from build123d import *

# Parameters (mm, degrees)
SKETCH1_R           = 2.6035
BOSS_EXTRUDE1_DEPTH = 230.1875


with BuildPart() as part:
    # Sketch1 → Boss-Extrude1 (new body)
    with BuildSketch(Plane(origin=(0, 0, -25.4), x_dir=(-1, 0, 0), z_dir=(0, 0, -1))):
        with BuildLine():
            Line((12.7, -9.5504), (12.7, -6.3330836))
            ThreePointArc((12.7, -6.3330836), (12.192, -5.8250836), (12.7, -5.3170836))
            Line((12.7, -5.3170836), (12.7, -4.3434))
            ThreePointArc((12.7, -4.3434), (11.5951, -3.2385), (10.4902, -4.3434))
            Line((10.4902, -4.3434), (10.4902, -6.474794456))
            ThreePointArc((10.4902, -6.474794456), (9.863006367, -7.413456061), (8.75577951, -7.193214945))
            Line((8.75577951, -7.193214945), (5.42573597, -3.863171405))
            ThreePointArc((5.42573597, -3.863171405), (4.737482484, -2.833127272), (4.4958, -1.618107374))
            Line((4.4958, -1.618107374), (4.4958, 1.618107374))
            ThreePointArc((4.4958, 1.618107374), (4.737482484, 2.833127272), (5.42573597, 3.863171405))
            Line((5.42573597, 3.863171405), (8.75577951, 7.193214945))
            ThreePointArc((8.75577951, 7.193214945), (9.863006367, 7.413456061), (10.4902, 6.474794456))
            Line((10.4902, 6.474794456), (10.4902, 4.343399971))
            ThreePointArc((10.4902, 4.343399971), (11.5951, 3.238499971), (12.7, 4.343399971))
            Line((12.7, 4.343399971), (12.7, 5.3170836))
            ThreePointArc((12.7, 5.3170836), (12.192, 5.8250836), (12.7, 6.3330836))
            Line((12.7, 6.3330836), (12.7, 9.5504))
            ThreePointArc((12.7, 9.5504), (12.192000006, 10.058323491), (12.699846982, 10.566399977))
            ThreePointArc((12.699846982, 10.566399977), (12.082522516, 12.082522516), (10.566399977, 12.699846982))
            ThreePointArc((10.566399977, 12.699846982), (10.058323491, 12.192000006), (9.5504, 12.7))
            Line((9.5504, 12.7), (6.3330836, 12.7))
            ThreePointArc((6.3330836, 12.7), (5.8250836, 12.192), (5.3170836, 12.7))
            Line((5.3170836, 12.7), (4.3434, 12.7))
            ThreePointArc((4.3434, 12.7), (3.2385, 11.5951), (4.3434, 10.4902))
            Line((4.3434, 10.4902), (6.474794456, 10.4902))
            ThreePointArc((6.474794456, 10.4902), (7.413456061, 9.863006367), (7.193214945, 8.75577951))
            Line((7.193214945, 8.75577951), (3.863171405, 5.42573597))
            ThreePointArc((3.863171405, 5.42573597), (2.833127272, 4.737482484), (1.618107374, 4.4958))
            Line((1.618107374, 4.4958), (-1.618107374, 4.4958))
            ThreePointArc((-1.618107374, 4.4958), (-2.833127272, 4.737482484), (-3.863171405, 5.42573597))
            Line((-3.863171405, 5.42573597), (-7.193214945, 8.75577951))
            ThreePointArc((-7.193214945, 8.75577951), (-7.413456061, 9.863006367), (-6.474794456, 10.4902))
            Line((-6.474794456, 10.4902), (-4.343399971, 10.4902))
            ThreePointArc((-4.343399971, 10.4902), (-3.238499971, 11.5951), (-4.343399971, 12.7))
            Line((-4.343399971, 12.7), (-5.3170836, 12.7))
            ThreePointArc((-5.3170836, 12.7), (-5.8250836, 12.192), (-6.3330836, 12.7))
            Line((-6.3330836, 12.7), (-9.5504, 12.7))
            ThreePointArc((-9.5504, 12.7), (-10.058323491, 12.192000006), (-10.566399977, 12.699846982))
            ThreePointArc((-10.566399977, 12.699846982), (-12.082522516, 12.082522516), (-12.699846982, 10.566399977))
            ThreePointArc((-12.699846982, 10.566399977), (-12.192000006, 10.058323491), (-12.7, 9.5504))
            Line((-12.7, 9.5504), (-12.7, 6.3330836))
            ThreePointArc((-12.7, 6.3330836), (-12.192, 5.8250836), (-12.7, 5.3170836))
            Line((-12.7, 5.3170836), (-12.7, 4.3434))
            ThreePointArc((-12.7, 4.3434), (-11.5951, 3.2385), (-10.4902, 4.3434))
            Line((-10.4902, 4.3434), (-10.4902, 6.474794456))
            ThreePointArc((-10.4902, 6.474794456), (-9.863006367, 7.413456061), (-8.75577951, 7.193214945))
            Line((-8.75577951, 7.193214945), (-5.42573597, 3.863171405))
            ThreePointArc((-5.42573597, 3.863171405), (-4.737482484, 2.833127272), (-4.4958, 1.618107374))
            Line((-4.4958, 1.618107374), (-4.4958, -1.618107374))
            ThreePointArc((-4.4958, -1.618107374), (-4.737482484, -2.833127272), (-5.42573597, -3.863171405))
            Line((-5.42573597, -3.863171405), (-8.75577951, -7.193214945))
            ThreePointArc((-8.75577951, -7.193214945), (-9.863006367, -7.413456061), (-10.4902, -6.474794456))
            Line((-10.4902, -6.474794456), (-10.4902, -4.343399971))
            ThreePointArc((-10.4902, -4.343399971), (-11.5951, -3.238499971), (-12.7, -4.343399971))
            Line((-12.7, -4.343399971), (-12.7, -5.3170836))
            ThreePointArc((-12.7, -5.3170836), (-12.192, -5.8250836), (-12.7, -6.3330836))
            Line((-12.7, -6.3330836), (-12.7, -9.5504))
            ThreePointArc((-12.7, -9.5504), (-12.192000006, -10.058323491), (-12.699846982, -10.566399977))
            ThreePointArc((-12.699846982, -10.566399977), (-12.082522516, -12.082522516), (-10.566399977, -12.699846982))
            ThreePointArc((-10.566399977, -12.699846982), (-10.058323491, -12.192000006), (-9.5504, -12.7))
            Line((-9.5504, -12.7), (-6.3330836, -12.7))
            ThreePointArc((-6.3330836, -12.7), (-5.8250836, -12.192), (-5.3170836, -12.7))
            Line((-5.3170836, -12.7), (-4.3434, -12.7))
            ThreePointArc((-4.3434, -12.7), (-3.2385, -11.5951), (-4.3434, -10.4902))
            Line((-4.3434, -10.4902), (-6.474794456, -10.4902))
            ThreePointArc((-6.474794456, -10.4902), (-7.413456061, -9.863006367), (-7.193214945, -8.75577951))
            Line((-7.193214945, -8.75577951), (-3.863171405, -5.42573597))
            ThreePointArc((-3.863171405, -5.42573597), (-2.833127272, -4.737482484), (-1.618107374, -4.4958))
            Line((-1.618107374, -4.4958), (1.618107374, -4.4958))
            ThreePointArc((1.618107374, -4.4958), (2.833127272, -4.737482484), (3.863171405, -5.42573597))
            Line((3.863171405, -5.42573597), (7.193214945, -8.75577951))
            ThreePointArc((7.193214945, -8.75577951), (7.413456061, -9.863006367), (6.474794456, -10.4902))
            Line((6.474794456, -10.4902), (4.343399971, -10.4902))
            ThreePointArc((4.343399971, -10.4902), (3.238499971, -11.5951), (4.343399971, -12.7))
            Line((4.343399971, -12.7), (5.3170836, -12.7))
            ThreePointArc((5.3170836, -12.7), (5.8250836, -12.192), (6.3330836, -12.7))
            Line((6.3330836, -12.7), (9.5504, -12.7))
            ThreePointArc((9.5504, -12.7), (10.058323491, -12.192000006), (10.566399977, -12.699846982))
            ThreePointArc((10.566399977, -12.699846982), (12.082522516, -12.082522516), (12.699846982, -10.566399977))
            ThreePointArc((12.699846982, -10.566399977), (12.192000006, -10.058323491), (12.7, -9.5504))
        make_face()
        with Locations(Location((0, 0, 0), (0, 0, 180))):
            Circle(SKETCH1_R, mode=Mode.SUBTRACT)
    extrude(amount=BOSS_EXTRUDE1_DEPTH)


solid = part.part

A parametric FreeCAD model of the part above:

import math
import FreeCAD as App
import Part
import Sketcher

V = App.Vector
Q = App.Units.Quantity

doc = App.newDocument("Part")
body = doc.addObject("PartDesign::Body", "Body")

sketch1 = body.newObject("Sketcher::SketchObject", "Sketch")
sketch1.AttachmentSupport = (doc.getObject("XY_Plane"), [""])
sketch1.MapMode = "FlatFace"
sketch1.AttachmentOffset = App.Placement(V(0, 0, -1 * 25.4), App.Rotation())
sketch1.addGeometry(Part.LineSegment(V(-12.7, -9.6, 0), V(-12.7, -6.3, 0)), False)
sketch1.addGeometry(Part.ArcOfCircle(Part.Circle(V(-12.7, -5.8, 0), V(0, 0, 1), 0.5), math.radians(-90), math.radians(90)), False)
sketch1.addGeometry(Part.LineSegment(V(-12.7, -5.3, 0), V(-12.7, -4.3, 0)), False)
sketch1.addGeometry(Part.ArcOfCircle(Part.Circle(V(-11.6, -4.3, 0), V(0, 0, 1), 1.1), math.radians(0), math.radians(180)), False)
sketch1.addGeometry(Part.LineSegment(V(-10.5, -4.3, 0), V(-10.5, -6.5, 0)), False)
sketch1.addGeometry(Part.ArcOfCircle(Part.Circle(V(-9.5, -6.5, 0), V(0, 0, 1), 1), math.radians(180), math.radians(315)), False)
sketch1.addGeometry(Part.LineSegment(V(-8.8, -7.2, 0), V(-5.4, -3.9, 0)), False)
sketch1.addGeometry(Part.ArcOfCircle(Part.Circle(V(-7.7, -1.6, 0), V(0, 0, 1), 3.2), math.radians(-45), math.radians(0)), False)
sketch1.addGeometry(Part.LineSegment(V(-4.5, -1.6, 0), V(-4.5, 1.6, 0)), False)
sketch1.addGeometry(Part.ArcOfCircle(Part.Circle(V(-7.7, 1.6, 0), V(0, 0, 1), 3.2), math.radians(0), math.radians(45)), False)
sketch1.addGeometry(Part.LineSegment(V(-5.4, 3.9, 0), V(-8.8, 7.2, 0)), False)
sketch1.addGeometry(Part.ArcOfCircle(Part.Circle(V(-9.5, 6.5, 0), V(0, 0, 1), 1), math.radians(45), math.radians(180)), False)
sketch1.addGeometry(Part.LineSegment(V(-10.5, 6.5, 0), V(-10.5, 4.3, 0)), False)
sketch1.addGeometry(Part.ArcOfCircle(Part.Circle(V(-11.6, 4.3, 0), V(0, 0, 1), 1.1), math.radians(180), math.radians(360)), False)
sketch1.addGeometry(Part.LineSegment(V(-12.7, 4.3, 0), V(-12.7, 5.3, 0)), False)
sketch1.addGeometry(Part.ArcOfCircle(Part.Circle(V(-12.7, 5.8, 0), V(0, 0, 1), 0.5), math.radians(-90), math.radians(90)), False)
sketch1.addGeometry(Part.LineSegment(V(-12.7, 6.3, 0), V(-12.7, 9.6, 0)), False)
sketch1.addGeometry(Part.ArcOfCircle(Part.Circle(V(-12.7, 10.1, 0), V(0, 0, 1), 0.5), math.radians(-90), math.radians(90)), False)
sketch1.addGeometry(Part.ArcOfCircle(Part.Circle(V(-10.6, 10.6, 0), V(0, 0, 1), 2.1), math.radians(89), math.radians(181)), False)
sketch1.addGeometry(Part.ArcOfCircle(Part.Circle(V(-10.1, 12.7, 0), V(0, 0, 1), 0.5), math.radians(-180), math.radians(0)), False)
sketch1.addGeometry(Part.LineSegment(V(-9.6, 12.7, 0), V(-6.3, 12.7, 0)), False)
sketch1.addGeometry(Part.ArcOfCircle(Part.Circle(V(-5.8, 12.7, 0), V(0, 0, 1), 0.5), math.radians(180), math.radians(360)), False)
sketch1.addGeometry(Part.LineSegment(V(-5.3, 12.7, 0), V(-4.3, 12.7, 0)), False)
sketch1.addGeometry(Part.ArcOfCircle(Part.Circle(V(-4.3, 11.6, 0), V(0, 0, 1), 1.1), math.radians(-90), math.radians(90)), False)
sketch1.addGeometry(Part.LineSegment(V(-4.3, 10.5, 0), V(-6.5, 10.5, 0)), False)
sketch1.addGeometry(Part.ArcOfCircle(Part.Circle(V(-6.5, 9.5, 0), V(0, 0, 1), 1), math.radians(90), math.radians(225)), False)
sketch1.addGeometry(Part.LineSegment(V(-7.2, 8.8, 0), V(-3.9, 5.4, 0)), False)
sketch1.addGeometry(Part.ArcOfCircle(Part.Circle(V(-1.6, 7.7, 0), V(0, 0, 1), 3.2), math.radians(-135), math.radians(-90)), False)
sketch1.addGeometry(Part.LineSegment(V(-1.6, 4.5, 0), V(1.6, 4.5, 0)), False)
sketch1.addGeometry(Part.ArcOfCircle(Part.Circle(V(1.6, 7.7, 0), V(0, 0, 1), 3.2), math.radians(-90), math.radians(-45)), False)
sketch1.addGeometry(Part.LineSegment(V(3.9, 5.4, 0), V(7.2, 8.8, 0)), False)
sketch1.addGeometry(Part.ArcOfCircle(Part.Circle(V(6.5, 9.5, 0), V(0, 0, 1), 1), math.radians(-45), math.radians(90)), False)
sketch1.addGeometry(Part.LineSegment(V(6.5, 10.5, 0), V(4.3, 10.5, 0)), False)
sketch1.addGeometry(Part.ArcOfCircle(Part.Circle(V(4.3, 11.6, 0), V(0, 0, 1), 1.1), math.radians(90), math.radians(270)), False)
sketch1.addGeometry(Part.LineSegment(V(4.3, 12.7, 0), V(5.3, 12.7, 0)), False)
sketch1.addGeometry(Part.ArcOfCircle(Part.Circle(V(5.8, 12.7, 0), V(0, 0, 1), 0.5), math.radians(180), math.radians(360)), False)
sketch1.addGeometry(Part.LineSegment(V(6.3, 12.7, 0), V(9.6, 12.7, 0)), False)
sketch1.addGeometry(Part.ArcOfCircle(Part.Circle(V(10.1, 12.7, 0), V(0, 0, 1), 0.5), math.radians(180), math.radians(360)), False)
sketch1.addGeometry(Part.ArcOfCircle(Part.Circle(V(10.6, 10.6, 0), V(0, 0, 1), 2.1), math.radians(-1), math.radians(91)), False)
sketch1.addGeometry(Part.ArcOfCircle(Part.Circle(V(12.7, 10.1, 0), V(0, 0, 1), 0.5), math.radians(90), math.radians(270)), False)
sketch1.addGeometry(Part.LineSegment(V(12.7, 9.6, 0), V(12.7, 6.3, 0)), False)
sketch1.addGeometry(Part.ArcOfCircle(Part.Circle(V(12.7, 5.8, 0), V(0, 0, 1), 0.5), math.radians(90), math.radians(270)), False)
sketch1.addGeometry(Part.LineSegment(V(12.7, 5.3, 0), V(12.7, 4.3, 0)), False)
sketch1.addGeometry(Part.ArcOfCircle(Part.Circle(V(11.6, 4.3, 0), V(0, 0, 1), 1.1), math.radians(180), math.radians(360)), False)
sketch1.addGeometry(Part.LineSegment(V(10.5, 4.3, 0), V(10.5, 6.5, 0)), False)
sketch1.addGeometry(Part.ArcOfCircle(Part.Circle(V(9.5, 6.5, 0), V(0, 0, 1), 1), math.radians(0), math.radians(135)), False)
sketch1.addGeometry(Part.LineSegment(V(8.8, 7.2, 0), V(5.4, 3.9, 0)), False)
sketch1.addGeometry(Part.ArcOfCircle(Part.Circle(V(7.7, 1.6, 0), V(0, 0, 1), 3.2), math.radians(135), math.radians(180)), False)
sketch1.addGeometry(Part.LineSegment(V(4.5, 1.6, 0), V(4.5, -1.6, 0)), False)
sketch1.addGeometry(Part.ArcOfCircle(Part.Circle(V(7.7, -1.6, 0), V(0, 0, 1), 3.2), math.radians(180), math.radians(225)), False)
sketch1.addGeometry(Part.LineSegment(V(5.4, -3.9, 0), V(8.8, -7.2, 0)), False)
sketch1.addGeometry(Part.ArcOfCircle(Part.Circle(V(9.5, -6.5, 0), V(0, 0, 1), 1), math.radians(-135), math.radians(0)), False)
sketch1.addGeometry(Part.LineSegment(V(10.5, -6.5, 0), V(10.5, -4.3, 0)), False)
sketch1.addGeometry(Part.ArcOfCircle(Part.Circle(V(11.6, -4.3, 0), V(0, 0, 1), 1.1), math.radians(0), math.radians(180)), False)
sketch1.addGeometry(Part.LineSegment(V(12.7, -4.3, 0), V(12.7, -5.3, 0)), False)
sketch1.addGeometry(Part.ArcOfCircle(Part.Circle(V(12.7, -5.8, 0), V(0, 0, 1), 0.5), math.radians(90), math.radians(270)), False)
sketch1.addGeometry(Part.LineSegment(V(12.7, -6.3, 0), V(12.7, -9.6, 0)), False)
sketch1.addGeometry(Part.ArcOfCircle(Part.Circle(V(12.7, -10.1, 0), V(0, 0, 1), 0.5), math.radians(90), math.radians(270)), False)
sketch1.addGeometry(Part.ArcOfCircle(Part.Circle(V(10.6, -10.6, 0), V(0, 0, 1), 2.1), math.radians(-91), math.radians(1)), False)
sketch1.addGeometry(Part.ArcOfCircle(Part.Circle(V(10.1, -12.7, 0), V(0, 0, 1), 0.5), math.radians(0), math.radians(180)), False)
sketch1.addGeometry(Part.LineSegment(V(9.6, -12.7, 0), V(6.3, -12.7, 0)), False)
sketch1.addGeometry(Part.ArcOfCircle(Part.Circle(V(5.8, -12.7, 0), V(0, 0, 1), 0.5), math.radians(0), math.radians(180)), False)
sketch1.addGeometry(Part.LineSegment(V(5.3, -12.7, 0), V(4.3, -12.7, 0)), False)
sketch1.addGeometry(Part.ArcOfCircle(Part.Circle(V(4.3, -11.6, 0), V(0, 0, 1), 1.1), math.radians(90), math.radians(270)), False)
sketch1.addGeometry(Part.LineSegment(V(4.3, -10.5, 0), V(6.5, -10.5, 0)), False)
sketch1.addGeometry(Part.ArcOfCircle(Part.Circle(V(6.5, -9.5, 0), V(0, 0, 1), 1), math.radians(-90), math.radians(45)), False)
sketch1.addGeometry(Part.LineSegment(V(7.2, -8.8, 0), V(3.9, -5.4, 0)), False)
sketch1.addGeometry(Part.ArcOfCircle(Part.Circle(V(1.6, -7.7, 0), V(0, 0, 1), 3.2), math.radians(45), math.radians(90)), False)
sketch1.addGeometry(Part.LineSegment(V(1.6, -4.5, 0), V(-1.6, -4.5, 0)), False)
sketch1.addGeometry(Part.ArcOfCircle(Part.Circle(V(-1.6, -7.7, 0), V(0, 0, 1), 3.2), math.radians(90), math.radians(135)), False)
sketch1.addGeometry(Part.LineSegment(V(-3.9, -5.4, 0), V(-7.2, -8.8, 0)), False)
sketch1.addGeometry(Part.ArcOfCircle(Part.Circle(V(-6.5, -9.5, 0), V(0, 0, 1), 1), math.radians(135), math.radians(270)), False)
sketch1.addGeometry(Part.LineSegment(V(-6.5, -10.5, 0), V(-4.3, -10.5, 0)), False)
sketch1.addGeometry(Part.ArcOfCircle(Part.Circle(V(-4.3, -11.6, 0), V(0, 0, 1), 1.1), math.radians(-90), math.radians(90)), False)
sketch1.addGeometry(Part.LineSegment(V(-4.3, -12.7, 0), V(-5.3, -12.7, 0)), False)
sketch1.addGeometry(Part.ArcOfCircle(Part.Circle(V(-5.8, -12.7, 0), V(0, 0, 1), 0.5), math.radians(0), math.radians(180)), False)
sketch1.addGeometry(Part.LineSegment(V(-6.3, -12.7, 0), V(-9.6, -12.7, 0)), False)
sketch1.addGeometry(Part.ArcOfCircle(Part.Circle(V(-10.1, -12.7, 0), V(0, 0, 1), 0.5), math.radians(0), math.radians(180)), False)
sketch1.addGeometry(Part.ArcOfCircle(Part.Circle(V(-10.6, -10.6, 0), V(0, 0, 1), 2.1), math.radians(179), math.radians(271)), False)
sketch1.addGeometry(Part.ArcOfCircle(Part.Circle(V(-12.7, -10.1, 0), V(0, 0, 1), 0.5), math.radians(-90), math.radians(90)), False)
sketch1.addGeometry(Part.Circle(V(0, 0, 0), V(0, 0, 1), 2.6), False)
sketch1.addConstraint(Sketcher.Constraint("Coincident", 0, 2, 1, 1))
sketch1.addConstraint(Sketcher.Constraint("Coincident", 1, 2, 2, 1))
sketch1.addConstraint(Sketcher.Constraint("Tangent", 2, 2, 3, 2))
sketch1.addConstraint(Sketcher.Constraint("Tangent", 3, 1, 4, 1))
sketch1.addConstraint(Sketcher.Constraint("Tangent", 4, 2, 5, 1))
sketch1.addConstraint(Sketcher.Constraint("Tangent", 5, 2, 6, 1))
sketch1.addConstraint(Sketcher.Constraint("Tangent", 6, 2, 7, 1))
sketch1.addConstraint(Sketcher.Constraint("Tangent", 7, 2, 8, 1))
sketch1.addConstraint(Sketcher.Constraint("Tangent", 8, 2, 9, 1))
sketch1.addConstraint(Sketcher.Constraint("Tangent", 9, 2, 10, 1))
sketch1.addConstraint(Sketcher.Constraint("Tangent", 10, 2, 11, 1))
sketch1.addConstraint(Sketcher.Constraint("Tangent", 11, 2, 12, 1))
sketch1.addConstraint(Sketcher.Constraint("Tangent", 12, 2, 13, 2))
sketch1.addConstraint(Sketcher.Constraint("Tangent", 13, 1, 14, 1))
sketch1.addConstraint(Sketcher.Constraint("Coincident", 14, 2, 15, 1))
sketch1.addConstraint(Sketcher.Constraint("Coincident", 15, 2, 16, 1))
sketch1.addConstraint(Sketcher.Constraint("Coincident", 16, 2, 17, 1))
sketch1.addConstraint(Sketcher.Constraint("Coincident", 17, 2, 18, 2))
sketch1.addConstraint(Sketcher.Constraint("Coincident", 18, 1, 19, 1))
sketch1.addConstraint(Sketcher.Constraint("Coincident", 19, 2, 20, 1))
sketch1.addConstraint(Sketcher.Constraint("Coincident", 20, 2, 21, 1))
sketch1.addConstraint(Sketcher.Constraint("Coincident", 21, 2, 22, 1))
sketch1.addConstraint(Sketcher.Constraint("Tangent", 22, 2, 23, 2))
sketch1.addConstraint(Sketcher.Constraint("Tangent", 23, 1, 24, 1))
sketch1.addConstraint(Sketcher.Constraint("Tangent", 24, 2, 25, 1))
sketch1.addConstraint(Sketcher.Constraint("Tangent", 25, 2, 26, 1))
sketch1.addConstraint(Sketcher.Constraint("Tangent", 26, 2, 27, 1))
sketch1.addConstraint(Sketcher.Constraint("Tangent", 27, 2, 28, 1))
sketch1.addConstraint(Sketcher.Constraint("Tangent", 28, 2, 29, 1))
sketch1.addConstraint(Sketcher.Constraint("Tangent", 29, 2, 30, 1))
sketch1.addConstraint(Sketcher.Constraint("Tangent", 30, 2, 31, 1))
sketch1.addConstraint(Sketcher.Constraint("Tangent", 31, 2, 32, 1))
sketch1.addConstraint(Sketcher.Constraint("Tangent", 32, 2, 33, 2))
sketch1.addConstraint(Sketcher.Constraint("Tangent", 33, 1, 34, 1))
sketch1.addConstraint(Sketcher.Constraint("Coincident", 34, 2, 35, 1))
sketch1.addConstraint(Sketcher.Constraint("Coincident", 35, 2, 36, 1))
sketch1.addConstraint(Sketcher.Constraint("Coincident", 36, 2, 37, 1))
sketch1.addConstraint(Sketcher.Constraint("Coincident", 37, 2, 38, 2))
sketch1.addConstraint(Sketcher.Constraint("Coincident", 38, 1, 39, 1))
sketch1.addConstraint(Sketcher.Constraint("Coincident", 39, 2, 40, 1))
sketch1.addConstraint(Sketcher.Constraint("Coincident", 40, 2, 41, 1))
sketch1.addConstraint(Sketcher.Constraint("Coincident", 41, 2, 42, 1))
sketch1.addConstraint(Sketcher.Constraint("Tangent", 42, 2, 43, 2))
sketch1.addConstraint(Sketcher.Constraint("Tangent", 43, 1, 44, 1))
sketch1.addConstraint(Sketcher.Constraint("Tangent", 44, 2, 45, 1))
sketch1.addConstraint(Sketcher.Constraint("Tangent", 45, 2, 46, 1))
sketch1.addConstraint(Sketcher.Constraint("Tangent", 46, 2, 47, 1))
sketch1.addConstraint(Sketcher.Constraint("Tangent", 47, 2, 48, 1))
sketch1.addConstraint(Sketcher.Constraint("Tangent", 48, 2, 49, 1))
sketch1.addConstraint(Sketcher.Constraint("Tangent", 49, 2, 50, 1))
sketch1.addConstraint(Sketcher.Constraint("Tangent", 50, 2, 51, 1))
sketch1.addConstraint(Sketcher.Constraint("Tangent", 51, 2, 52, 1))
sketch1.addConstraint(Sketcher.Constraint("Tangent", 52, 2, 53, 2))
sketch1.addConstraint(Sketcher.Constraint("Tangent", 53, 1, 54, 1))
sketch1.addConstraint(Sketcher.Constraint("Coincident", 54, 2, 55, 1))
sketch1.addConstraint(Sketcher.Constraint("Coincident", 55, 2, 56, 1))
sketch1.addConstraint(Sketcher.Constraint("Coincident", 56, 2, 57, 1))
sketch1.addConstraint(Sketcher.Constraint("Coincident", 57, 2, 58, 2))
sketch1.addConstraint(Sketcher.Constraint("Coincident", 58, 1, 59, 1))
sketch1.addConstraint(Sketcher.Constraint("Coincident", 59, 2, 60, 1))
sketch1.addConstraint(Sketcher.Constraint("Coincident", 60, 2, 61, 1))
sketch1.addConstraint(Sketcher.Constraint("Coincident", 61, 2, 62, 1))
sketch1.addConstraint(Sketcher.Constraint("Tangent", 62, 2, 63, 2))
sketch1.addConstraint(Sketcher.Constraint("Tangent", 63, 1, 64, 1))
sketch1.addConstraint(Sketcher.Constraint("Tangent", 64, 2, 65, 1))
sketch1.addConstraint(Sketcher.Constraint("Tangent", 65, 2, 66, 1))
sketch1.addConstraint(Sketcher.Constraint("Tangent", 66, 2, 67, 1))
sketch1.addConstraint(Sketcher.Constraint("Tangent", 67, 2, 68, 1))
sketch1.addConstraint(Sketcher.Constraint("Tangent", 68, 2, 69, 1))
sketch1.addConstraint(Sketcher.Constraint("Tangent", 69, 2, 70, 1))
sketch1.addConstraint(Sketcher.Constraint("Tangent", 70, 2, 71, 1))
sketch1.addConstraint(Sketcher.Constraint("Tangent", 71, 2, 72, 1))
sketch1.addConstraint(Sketcher.Constraint("Tangent", 72, 2, 73, 2))
sketch1.addConstraint(Sketcher.Constraint("Tangent", 73, 1, 74, 1))
sketch1.addConstraint(Sketcher.Constraint("Coincident", 74, 2, 75, 1))
sketch1.addConstraint(Sketcher.Constraint("Coincident", 75, 2, 76, 1))
sketch1.addConstraint(Sketcher.Constraint("Coincident", 76, 2, 77, 1))
sketch1.addConstraint(Sketcher.Constraint("Coincident", 77, 2, 78, 2))
sketch1.addConstraint(Sketcher.Constraint("Coincident", 78, 1, 79, 1))
sketch1.addConstraint(Sketcher.Constraint("Coincident", 79, 2, 0, 1))
sketch1.addConstraint(Sketcher.Constraint("Vertical", 0))
sketch1.addConstraint(Sketcher.Constraint("Vertical", 2))
sketch1.addConstraint(Sketcher.Constraint("Vertical", 4))
sketch1.addConstraint(Sketcher.Constraint("Vertical", 8))
sketch1.addConstraint(Sketcher.Constraint("Vertical", 12))
sketch1.addConstraint(Sketcher.Constraint("Vertical", 14))
sketch1.addConstraint(Sketcher.Constraint("Vertical", 16))
sketch1.addConstraint(Sketcher.Constraint("Horizontal", 20))
sketch1.addConstraint(Sketcher.Constraint("Horizontal", 22))
sketch1.addConstraint(Sketcher.Constraint("Horizontal", 24))
sketch1.addConstraint(Sketcher.Constraint("Horizontal", 28))
sketch1.addConstraint(Sketcher.Constraint("Horizontal", 32))
sketch1.addConstraint(Sketcher.Constraint("Horizontal", 34))
sketch1.addConstraint(Sketcher.Constraint("Horizontal", 36))
sketch1.addConstraint(Sketcher.Constraint("Vertical", 40))
sketch1.addConstraint(Sketcher.Constraint("Vertical", 42))
sketch1.addConstraint(Sketcher.Constraint("Vertical", 44))
sketch1.addConstraint(Sketcher.Constraint("Vertical", 48))
sketch1.addConstraint(Sketcher.Constraint("Vertical", 52))
sketch1.addConstraint(Sketcher.Constraint("Vertical", 54))
sketch1.addConstraint(Sketcher.Constraint("Vertical", 56))
sketch1.addConstraint(Sketcher.Constraint("Horizontal", 60))
sketch1.addConstraint(Sketcher.Constraint("Horizontal", 62))
sketch1.addConstraint(Sketcher.Constraint("Horizontal", 64))
sketch1.addConstraint(Sketcher.Constraint("Horizontal", 68))
sketch1.addConstraint(Sketcher.Constraint("Horizontal", 72))
sketch1.addConstraint(Sketcher.Constraint("Horizontal", 74))
sketch1.addConstraint(Sketcher.Constraint("Horizontal", 76))
sketch1.addConstraint(Sketcher.Constraint("Coincident", 80, 3, -1, 1))
sketch1.addConstraint(Sketcher.Constraint("Equal", 7, 9))
sketch1.addConstraint(Sketcher.Constraint("Equal", 5, 11))
sketch1.addConstraint(Sketcher.Constraint("Equal", 3, 13))
sketch1.addConstraint(Sketcher.Constraint("Equal", 1, 15))
sketch1.addConstraint(Sketcher.Constraint("Equal", 15, 17))
sketch1.addConstraint(Sketcher.Constraint("Equal", 17, 19))
sketch1.addConstraint(Sketcher.Constraint("Equal", 19, 21))
sketch1.addConstraint(Sketcher.Constraint("Equal", 13, 23))
sketch1.addConstraint(Sketcher.Constraint("Equal", 11, 25))
sketch1.addConstraint(Sketcher.Constraint("Equal", 9, 27))
sketch1.addConstraint(Sketcher.Constraint("Equal", 27, 29))
sketch1.addConstraint(Sketcher.Constraint("Equal", 25, 31))
sketch1.addConstraint(Sketcher.Constraint("Equal", 23, 33))
sketch1.addConstraint(Sketcher.Constraint("Equal", 21, 35))
sketch1.addConstraint(Sketcher.Constraint("Equal", 35, 37))
sketch1.addConstraint(Sketcher.Constraint("Equal", 18, 38))
sketch1.addConstraint(Sketcher.Constraint("Equal", 37, 39))
sketch1.addConstraint(Sketcher.Constraint("Equal", 39, 41))
sketch1.addConstraint(Sketcher.Constraint("Equal", 33, 43))
sketch1.addConstraint(Sketcher.Constraint("Equal", 31, 45))
sketch1.addConstraint(Sketcher.Constraint("Equal", 29, 47))
sketch1.addConstraint(Sketcher.Constraint("Equal", 47, 49))
sketch1.addConstraint(Sketcher.Constraint("Equal", 45, 51))
sketch1.addConstraint(Sketcher.Constraint("Equal", 43, 53))
sketch1.addConstraint(Sketcher.Constraint("Equal", 41, 55))
sketch1.addConstraint(Sketcher.Constraint("Equal", 55, 57))
sketch1.addConstraint(Sketcher.Constraint("Equal", 38, 58))
sketch1.addConstraint(Sketcher.Constraint("Equal", 57, 59))
sketch1.addConstraint(Sketcher.Constraint("Equal", 59, 61))
sketch1.addConstraint(Sketcher.Constraint("Equal", 53, 63))
sketch1.addConstraint(Sketcher.Constraint("Equal", 51, 65))
sketch1.addConstraint(Sketcher.Constraint("Equal", 49, 67))
sketch1.addConstraint(Sketcher.Constraint("Equal", 67, 69))
sketch1.addConstraint(Sketcher.Constraint("Equal", 65, 71))
sketch1.addConstraint(Sketcher.Constraint("Equal", 63, 73))
sketch1.addConstraint(Sketcher.Constraint("Equal", 61, 75))
sketch1.addConstraint(Sketcher.Constraint("Equal", 75, 77))
sketch1.addConstraint(Sketcher.Constraint("Equal", 58, 78))
sketch1.addConstraint(Sketcher.Constraint("Equal", 77, 79))
sketch1.addConstraint(Sketcher.Constraint("Symmetric", 1, 3, 41, 3, -1, 1))
sketch1.addConstraint(Sketcher.Constraint("Symmetric", 3, 3, 43, 3, -1, 1))
sketch1.addConstraint(Sketcher.Constraint("Symmetric", 7, 3, 47, 3, -1, 1))
sketch1.addConstraint(Sketcher.Constraint("Symmetric", 11, 3, 51, 3, -1, 1))
sketch1.addConstraint(Sketcher.Constraint("Symmetric", 15, 3, 55, 3, -1, 1))
sketch1.addConstraint(Sketcher.Constraint("Symmetric", 17, 3, 57, 3, -1, 1))
sketch1.addConstraint(Sketcher.Constraint("Symmetric", 18, 3, 58, 3, -1, 1))
sketch1.addConstraint(Sketcher.Constraint("Symmetric", 19, 3, 59, 3, -1, 1))
sketch1.addConstraint(Sketcher.Constraint("Symmetric", 21, 3, 61, 3, -1, 1))
sketch1.addConstraint(Sketcher.Constraint("Symmetric", 23, 3, 63, 3, -1, 1))
sketch1.addConstraint(Sketcher.Constraint("Symmetric", 27, 3, 67, 3, -1, 1))
sketch1.addConstraint(Sketcher.Constraint("Symmetric", 31, 3, 71, 3, -1, 1))
sketch1.addConstraint(Sketcher.Constraint("Symmetric", 35, 3, 75, 3, -1, 1))
sketch1.addConstraint(Sketcher.Constraint("Symmetric", 37, 3, 77, 3, -1, 1))
sketch1.addConstraint(Sketcher.Constraint("Symmetric", 38, 3, 78, 3, -1, 1))
sketch1.addConstraint(Sketcher.Constraint("Symmetric", 39, 3, 79, 3, -1, 1))
sketch1.addConstraint(Sketcher.Constraint("Symmetric", 25, 3, 31, 3, -2))
sketch1.addConstraint(Sketcher.Constraint("Symmetric", 21, 3, 35, 3, -2))
sketch1.addConstraint(Sketcher.Constraint("Symmetric", 19, 3, 37, 3, -2))
sketch1.addConstraint(Sketcher.Constraint("Symmetric", 18, 3, 38, 3, -2))
sketch1.addConstraint(Sketcher.Constraint("Symmetric", 17, 3, 39, 3, -2))
sketch1.addConstraint(Sketcher.Constraint("Symmetric", 15, 3, 41, 3, -2))
sketch1.addConstraint(Sketcher.Constraint("Symmetric", 13, 3, 43, 3, -2))
sketch1.addConstraint(Sketcher.Constraint("Symmetric", 10, 2, 45, 2, -2))
sketch1.addConstraint(Sketcher.Constraint("Symmetric", 6, 2, 49, 2, -2))
sketch1.addConstraint(Sketcher.Constraint("Symmetric", 66, 2, 69, 2, -2))
sketch1.addConstraint(Sketcher.Constraint("Perpendicular", 6, 10))
sketch1.addConstraint(Sketcher.Constraint("Parallel", 10, 26))
sketch1.addConstraint(Sketcher.Constraint("Perpendicular", 26, 30))
sketch1.addConstraint(Sketcher.Constraint("Horizontal", 19, 3, 21, 3))
sketch1.addConstraint(Sketcher.Constraint("Horizontal", 3, 3, 53, 3))
sketch1.addConstraint(Sketcher.Constraint("Horizontal", 37, 3, 19, 2))
sketch1.addConstraint(Sketcher.Constraint("Horizontal", 20, 2, 21, 2))
sketch1.addConstraint(Sketcher.Constraint("Horizontal", 34, 2, 35, 2))
sketch1.addConstraint(Sketcher.Constraint("Horizontal", 77, 3, 59, 2))
sketch1.addConstraint(Sketcher.Constraint("Horizontal", 74, 2, 75, 2))
sketch1.addConstraint(Sketcher.Constraint("Vertical", 15, 3, 17, 3))
sketch1.addConstraint(Sketcher.Constraint("Vertical", 33, 3, 63, 3))
sketch1.addConstraint(Sketcher.Constraint("Vertical", 23, 3, 73, 3))
sketch1.addConstraint(Sketcher.Constraint("Vertical", 79, 3, 0, 2))
sketch1.addConstraint(Sketcher.Constraint("Vertical", 0, 2, 1, 2))
sketch1.addConstraint(Sketcher.Constraint("Vertical", 14, 2, 15, 2))
sketch1.addConstraint(Sketcher.Constraint("Vertical", 57, 3, 39, 2))
sketch1.addConstraint(Sketcher.Constraint("Vertical", 54, 2, 55, 2))
sketch1.addConstraint(Sketcher.Constraint("Equal", 76, 0))
sketch1.addConstraint(Sketcher.Constraint("Equal", 74, 2))
sketch1.addConstraint(Sketcher.Constraint("Equal", 72, 4))
sketch1.addConstraint(Sketcher.Constraint("Equal", 68, 8))
sketch1.addConstraint(Sketcher.Constraint("Equal", 10, 26))
sketch1.addConstraint(Sketcher.Constraint("Radius", 1, Q("0.02 in")))
sketch1.addConstraint(Sketcher.Constraint("Radius", 5, Q("0.04 in")))
sketch1.addConstraint(Sketcher.Constraint("Diameter", 80, Q("0.205 in")))
sketch1.addConstraint(Sketcher.Constraint("Radius", 7, Q("0.125 in")))
sketch1.addConstraint(Sketcher.Constraint("Radius", 18, Q("0.083 in")))
sketch1.addConstraint(Sketcher.Constraint("DistanceX", 1, 3, -1, 1, Q("0.5 in")))
sketch1.addConstraint(Sketcher.Constraint("DistanceY", -1, 1, 19, 3, Q("0.5 in")))
sketch1.addConstraint(Sketcher.Constraint("Radius", 3, Q("0.0435 in")))
sketch1.addConstraint(Sketcher.Constraint("DistanceY", 3, 3, -1, 1, Q("0.171 in")))
sketch1.addConstraint(Sketcher.Constraint("DistanceX", 7, 3, -1, 1, Q("0.302 in")))
sketch1.addConstraint(Sketcher.Constraint("DistanceY", -1, 1, 17, 3, Q("0.396 in")))
sketch1.addConstraint(Sketcher.Constraint("DistanceX", 18, 3, -1, 1, Q("0.417 in")))
sketch1.addConstraint(Sketcher.Constraint("DistanceY", -1, 1, 18, 3, Q("0.417 in")))
sketch1.addConstraint(Sketcher.Constraint("DistanceX", 20, 1, 20, 2, Q("3.217316 mm")))
sketch1.addConstraint(Sketcher.Constraint("DistanceX", 24, 2, 24, 1, Q("2.131394 mm")))
pad1 = body.newObject("PartDesign::Pad", "Pad")
pad1.Profile = sketch1
pad1.Length = Q("9.0625 in")
pad1.Reversed = True

doc.recompute()
